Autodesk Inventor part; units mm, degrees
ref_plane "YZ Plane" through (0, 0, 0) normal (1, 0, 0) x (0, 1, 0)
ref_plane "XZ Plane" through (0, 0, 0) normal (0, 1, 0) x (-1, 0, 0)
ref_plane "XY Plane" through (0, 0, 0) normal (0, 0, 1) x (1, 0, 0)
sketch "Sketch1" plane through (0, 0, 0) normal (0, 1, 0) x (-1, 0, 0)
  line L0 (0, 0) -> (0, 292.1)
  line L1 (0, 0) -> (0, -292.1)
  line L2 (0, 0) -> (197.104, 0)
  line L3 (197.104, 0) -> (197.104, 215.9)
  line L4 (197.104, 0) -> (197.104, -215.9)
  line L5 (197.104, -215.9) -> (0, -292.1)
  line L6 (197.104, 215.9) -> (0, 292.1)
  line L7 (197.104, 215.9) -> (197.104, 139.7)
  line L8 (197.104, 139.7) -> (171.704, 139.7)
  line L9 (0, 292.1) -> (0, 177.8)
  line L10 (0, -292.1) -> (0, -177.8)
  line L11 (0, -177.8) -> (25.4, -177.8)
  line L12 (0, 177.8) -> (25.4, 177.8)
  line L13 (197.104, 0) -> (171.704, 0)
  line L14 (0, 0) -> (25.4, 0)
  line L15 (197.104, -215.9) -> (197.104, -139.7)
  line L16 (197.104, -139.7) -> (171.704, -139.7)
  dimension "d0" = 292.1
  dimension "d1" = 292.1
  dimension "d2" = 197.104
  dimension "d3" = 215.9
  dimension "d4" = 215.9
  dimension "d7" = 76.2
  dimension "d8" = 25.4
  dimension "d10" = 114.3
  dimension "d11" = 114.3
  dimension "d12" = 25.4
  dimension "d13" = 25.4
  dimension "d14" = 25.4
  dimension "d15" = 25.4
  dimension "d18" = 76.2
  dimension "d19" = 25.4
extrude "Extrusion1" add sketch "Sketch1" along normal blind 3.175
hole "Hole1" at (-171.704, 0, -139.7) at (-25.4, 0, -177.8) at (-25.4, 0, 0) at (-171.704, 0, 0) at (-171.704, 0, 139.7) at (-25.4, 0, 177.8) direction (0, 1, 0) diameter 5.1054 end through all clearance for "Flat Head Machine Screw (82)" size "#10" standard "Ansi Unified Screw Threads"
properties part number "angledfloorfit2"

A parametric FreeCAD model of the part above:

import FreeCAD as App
import Part
import Sketcher

V = App.Vector
Q = App.Units.Quantity


def add_polygon(sketch, points):
    """Adds a closed chain of lines whose ends are joined by coincident constraints."""
    first, n = sketch.GeometryCount, len(points)
    for a, b in zip(points, points[1:] + points[:1]):
        sketch.addGeometry(Part.LineSegment(App.Vector(*a, 0), App.Vector(*b, 0)), False)
    for i in range(n):
        sketch.addConstraint(Sketcher.Constraint("Coincident", first + i, 2, first + (i + 1) % n, 1))

doc = App.newDocument("Part")
body = doc.addObject("PartDesign::Body", "Body")

sketch1 = body.newObject("Sketcher::SketchObject", "Sketch")
sketch1.AttachmentSupport = (doc.getObject("XZ_Plane"), [""])
sketch1.MapMode = "FlatFace"
add_polygon(sketch1, [(-197, 216), (0, 292), (0, -292), (-197, -216)])
sketch1.addConstraint([
    Sketcher.Constraint("Vertical", 1),
    Sketcher.Constraint("Vertical", 3),
    Sketcher.Constraint("Symmetric", 0, 2, 1, 2, -1, 1),
    Sketcher.Constraint("Equal", 0, 2),
    Sketcher.Constraint("DistanceY", 1, 2, 2, 2, Q("3 in")),
    Sketcher.Constraint("DistanceY", -1, 1, 0, 2, Q("11.5 in")),
    Sketcher.Constraint("DistanceX", 2, 2, -1, 1, Q("7.76 in")),
])
pad1 = body.newObject("PartDesign::Pad", "Pad")
pad1.Profile = sketch1
pad1.Length = Q("0.125 in")
pad1.Reversed = True

sketch2 = body.newObject("Sketcher::SketchObject", "Sketch001")
sketch2.AttachmentSupport = (doc.getObject("XZ_Plane"), [""])
sketch2.MapMode = "FlatFace"
sketch2.addGeometry([
    Part.Circle(V(-171.7, -139.7, 0), V(0, 0, 1), 2.6),
    Part.Circle(V(-25.4, -177.8, 0), V(0, 0, 1), 2.6),
    Part.Circle(V(-25.4, 0, 0), V(0, 0, 1), 2.6),
    Part.Circle(V(-171.7, 0, 0), V(0, 0, 1), 2.6),
    Part.Circle(V(-171.7, 139.7, 0), V(0, 0, 1), 2.6),
    Part.Circle(V(-25.4, 177.8, 0), V(0, 0, 1), 2.6),
], False)
sketch2.addConstraint([
    Sketcher.Constraint("Equal", 0, 1),
    Sketcher.Constraint("Equal", 1, 2),
    Sketcher.Constraint("Equal", 2, 3),
    Sketcher.Constraint("Equal", 3, 4),
    Sketcher.Constraint("Equal", 4, 5),
    Sketcher.Constraint("Symmetric", 0, 3, 4, 3, -1),
    Sketcher.Constraint("Symmetric", 1, 3, 5, 3, -1),
    Sketcher.Constraint("PointOnObject", 2, 3, -1),
    Sketcher.Constraint("PointOnObject", 3, 3, -1),
    Sketcher.Constraint("Vertical", 1, 3, 2, 3),
    Sketcher.Constraint("Vertical", 0, 3, 3, 3),
    Sketcher.Constraint("Diameter", 0, Q("0.201 in")),
    Sketcher.Constraint("DistanceX", 1, 3, -1, 1, Q("1 in")),
    Sketcher.Constraint("DistanceY", 1, 3, -1, 1, Q("7 in")),
    Sketcher.Constraint("DistanceY", 0, 3, 4, 3, Q("11 in")),
    Sketcher.Constraint("DistanceX", 0, 3, -1, 1, Q("6.76 in")),
])
doc.recompute()
hole = body.newObject("PartDesign::Hole", "Hole")
hole.Profile = sketch2
hole.ThreadType = "None"
hole.Diameter = Q("0.201 in")
hole.DepthType = "ThroughAll"

doc.recompute()
